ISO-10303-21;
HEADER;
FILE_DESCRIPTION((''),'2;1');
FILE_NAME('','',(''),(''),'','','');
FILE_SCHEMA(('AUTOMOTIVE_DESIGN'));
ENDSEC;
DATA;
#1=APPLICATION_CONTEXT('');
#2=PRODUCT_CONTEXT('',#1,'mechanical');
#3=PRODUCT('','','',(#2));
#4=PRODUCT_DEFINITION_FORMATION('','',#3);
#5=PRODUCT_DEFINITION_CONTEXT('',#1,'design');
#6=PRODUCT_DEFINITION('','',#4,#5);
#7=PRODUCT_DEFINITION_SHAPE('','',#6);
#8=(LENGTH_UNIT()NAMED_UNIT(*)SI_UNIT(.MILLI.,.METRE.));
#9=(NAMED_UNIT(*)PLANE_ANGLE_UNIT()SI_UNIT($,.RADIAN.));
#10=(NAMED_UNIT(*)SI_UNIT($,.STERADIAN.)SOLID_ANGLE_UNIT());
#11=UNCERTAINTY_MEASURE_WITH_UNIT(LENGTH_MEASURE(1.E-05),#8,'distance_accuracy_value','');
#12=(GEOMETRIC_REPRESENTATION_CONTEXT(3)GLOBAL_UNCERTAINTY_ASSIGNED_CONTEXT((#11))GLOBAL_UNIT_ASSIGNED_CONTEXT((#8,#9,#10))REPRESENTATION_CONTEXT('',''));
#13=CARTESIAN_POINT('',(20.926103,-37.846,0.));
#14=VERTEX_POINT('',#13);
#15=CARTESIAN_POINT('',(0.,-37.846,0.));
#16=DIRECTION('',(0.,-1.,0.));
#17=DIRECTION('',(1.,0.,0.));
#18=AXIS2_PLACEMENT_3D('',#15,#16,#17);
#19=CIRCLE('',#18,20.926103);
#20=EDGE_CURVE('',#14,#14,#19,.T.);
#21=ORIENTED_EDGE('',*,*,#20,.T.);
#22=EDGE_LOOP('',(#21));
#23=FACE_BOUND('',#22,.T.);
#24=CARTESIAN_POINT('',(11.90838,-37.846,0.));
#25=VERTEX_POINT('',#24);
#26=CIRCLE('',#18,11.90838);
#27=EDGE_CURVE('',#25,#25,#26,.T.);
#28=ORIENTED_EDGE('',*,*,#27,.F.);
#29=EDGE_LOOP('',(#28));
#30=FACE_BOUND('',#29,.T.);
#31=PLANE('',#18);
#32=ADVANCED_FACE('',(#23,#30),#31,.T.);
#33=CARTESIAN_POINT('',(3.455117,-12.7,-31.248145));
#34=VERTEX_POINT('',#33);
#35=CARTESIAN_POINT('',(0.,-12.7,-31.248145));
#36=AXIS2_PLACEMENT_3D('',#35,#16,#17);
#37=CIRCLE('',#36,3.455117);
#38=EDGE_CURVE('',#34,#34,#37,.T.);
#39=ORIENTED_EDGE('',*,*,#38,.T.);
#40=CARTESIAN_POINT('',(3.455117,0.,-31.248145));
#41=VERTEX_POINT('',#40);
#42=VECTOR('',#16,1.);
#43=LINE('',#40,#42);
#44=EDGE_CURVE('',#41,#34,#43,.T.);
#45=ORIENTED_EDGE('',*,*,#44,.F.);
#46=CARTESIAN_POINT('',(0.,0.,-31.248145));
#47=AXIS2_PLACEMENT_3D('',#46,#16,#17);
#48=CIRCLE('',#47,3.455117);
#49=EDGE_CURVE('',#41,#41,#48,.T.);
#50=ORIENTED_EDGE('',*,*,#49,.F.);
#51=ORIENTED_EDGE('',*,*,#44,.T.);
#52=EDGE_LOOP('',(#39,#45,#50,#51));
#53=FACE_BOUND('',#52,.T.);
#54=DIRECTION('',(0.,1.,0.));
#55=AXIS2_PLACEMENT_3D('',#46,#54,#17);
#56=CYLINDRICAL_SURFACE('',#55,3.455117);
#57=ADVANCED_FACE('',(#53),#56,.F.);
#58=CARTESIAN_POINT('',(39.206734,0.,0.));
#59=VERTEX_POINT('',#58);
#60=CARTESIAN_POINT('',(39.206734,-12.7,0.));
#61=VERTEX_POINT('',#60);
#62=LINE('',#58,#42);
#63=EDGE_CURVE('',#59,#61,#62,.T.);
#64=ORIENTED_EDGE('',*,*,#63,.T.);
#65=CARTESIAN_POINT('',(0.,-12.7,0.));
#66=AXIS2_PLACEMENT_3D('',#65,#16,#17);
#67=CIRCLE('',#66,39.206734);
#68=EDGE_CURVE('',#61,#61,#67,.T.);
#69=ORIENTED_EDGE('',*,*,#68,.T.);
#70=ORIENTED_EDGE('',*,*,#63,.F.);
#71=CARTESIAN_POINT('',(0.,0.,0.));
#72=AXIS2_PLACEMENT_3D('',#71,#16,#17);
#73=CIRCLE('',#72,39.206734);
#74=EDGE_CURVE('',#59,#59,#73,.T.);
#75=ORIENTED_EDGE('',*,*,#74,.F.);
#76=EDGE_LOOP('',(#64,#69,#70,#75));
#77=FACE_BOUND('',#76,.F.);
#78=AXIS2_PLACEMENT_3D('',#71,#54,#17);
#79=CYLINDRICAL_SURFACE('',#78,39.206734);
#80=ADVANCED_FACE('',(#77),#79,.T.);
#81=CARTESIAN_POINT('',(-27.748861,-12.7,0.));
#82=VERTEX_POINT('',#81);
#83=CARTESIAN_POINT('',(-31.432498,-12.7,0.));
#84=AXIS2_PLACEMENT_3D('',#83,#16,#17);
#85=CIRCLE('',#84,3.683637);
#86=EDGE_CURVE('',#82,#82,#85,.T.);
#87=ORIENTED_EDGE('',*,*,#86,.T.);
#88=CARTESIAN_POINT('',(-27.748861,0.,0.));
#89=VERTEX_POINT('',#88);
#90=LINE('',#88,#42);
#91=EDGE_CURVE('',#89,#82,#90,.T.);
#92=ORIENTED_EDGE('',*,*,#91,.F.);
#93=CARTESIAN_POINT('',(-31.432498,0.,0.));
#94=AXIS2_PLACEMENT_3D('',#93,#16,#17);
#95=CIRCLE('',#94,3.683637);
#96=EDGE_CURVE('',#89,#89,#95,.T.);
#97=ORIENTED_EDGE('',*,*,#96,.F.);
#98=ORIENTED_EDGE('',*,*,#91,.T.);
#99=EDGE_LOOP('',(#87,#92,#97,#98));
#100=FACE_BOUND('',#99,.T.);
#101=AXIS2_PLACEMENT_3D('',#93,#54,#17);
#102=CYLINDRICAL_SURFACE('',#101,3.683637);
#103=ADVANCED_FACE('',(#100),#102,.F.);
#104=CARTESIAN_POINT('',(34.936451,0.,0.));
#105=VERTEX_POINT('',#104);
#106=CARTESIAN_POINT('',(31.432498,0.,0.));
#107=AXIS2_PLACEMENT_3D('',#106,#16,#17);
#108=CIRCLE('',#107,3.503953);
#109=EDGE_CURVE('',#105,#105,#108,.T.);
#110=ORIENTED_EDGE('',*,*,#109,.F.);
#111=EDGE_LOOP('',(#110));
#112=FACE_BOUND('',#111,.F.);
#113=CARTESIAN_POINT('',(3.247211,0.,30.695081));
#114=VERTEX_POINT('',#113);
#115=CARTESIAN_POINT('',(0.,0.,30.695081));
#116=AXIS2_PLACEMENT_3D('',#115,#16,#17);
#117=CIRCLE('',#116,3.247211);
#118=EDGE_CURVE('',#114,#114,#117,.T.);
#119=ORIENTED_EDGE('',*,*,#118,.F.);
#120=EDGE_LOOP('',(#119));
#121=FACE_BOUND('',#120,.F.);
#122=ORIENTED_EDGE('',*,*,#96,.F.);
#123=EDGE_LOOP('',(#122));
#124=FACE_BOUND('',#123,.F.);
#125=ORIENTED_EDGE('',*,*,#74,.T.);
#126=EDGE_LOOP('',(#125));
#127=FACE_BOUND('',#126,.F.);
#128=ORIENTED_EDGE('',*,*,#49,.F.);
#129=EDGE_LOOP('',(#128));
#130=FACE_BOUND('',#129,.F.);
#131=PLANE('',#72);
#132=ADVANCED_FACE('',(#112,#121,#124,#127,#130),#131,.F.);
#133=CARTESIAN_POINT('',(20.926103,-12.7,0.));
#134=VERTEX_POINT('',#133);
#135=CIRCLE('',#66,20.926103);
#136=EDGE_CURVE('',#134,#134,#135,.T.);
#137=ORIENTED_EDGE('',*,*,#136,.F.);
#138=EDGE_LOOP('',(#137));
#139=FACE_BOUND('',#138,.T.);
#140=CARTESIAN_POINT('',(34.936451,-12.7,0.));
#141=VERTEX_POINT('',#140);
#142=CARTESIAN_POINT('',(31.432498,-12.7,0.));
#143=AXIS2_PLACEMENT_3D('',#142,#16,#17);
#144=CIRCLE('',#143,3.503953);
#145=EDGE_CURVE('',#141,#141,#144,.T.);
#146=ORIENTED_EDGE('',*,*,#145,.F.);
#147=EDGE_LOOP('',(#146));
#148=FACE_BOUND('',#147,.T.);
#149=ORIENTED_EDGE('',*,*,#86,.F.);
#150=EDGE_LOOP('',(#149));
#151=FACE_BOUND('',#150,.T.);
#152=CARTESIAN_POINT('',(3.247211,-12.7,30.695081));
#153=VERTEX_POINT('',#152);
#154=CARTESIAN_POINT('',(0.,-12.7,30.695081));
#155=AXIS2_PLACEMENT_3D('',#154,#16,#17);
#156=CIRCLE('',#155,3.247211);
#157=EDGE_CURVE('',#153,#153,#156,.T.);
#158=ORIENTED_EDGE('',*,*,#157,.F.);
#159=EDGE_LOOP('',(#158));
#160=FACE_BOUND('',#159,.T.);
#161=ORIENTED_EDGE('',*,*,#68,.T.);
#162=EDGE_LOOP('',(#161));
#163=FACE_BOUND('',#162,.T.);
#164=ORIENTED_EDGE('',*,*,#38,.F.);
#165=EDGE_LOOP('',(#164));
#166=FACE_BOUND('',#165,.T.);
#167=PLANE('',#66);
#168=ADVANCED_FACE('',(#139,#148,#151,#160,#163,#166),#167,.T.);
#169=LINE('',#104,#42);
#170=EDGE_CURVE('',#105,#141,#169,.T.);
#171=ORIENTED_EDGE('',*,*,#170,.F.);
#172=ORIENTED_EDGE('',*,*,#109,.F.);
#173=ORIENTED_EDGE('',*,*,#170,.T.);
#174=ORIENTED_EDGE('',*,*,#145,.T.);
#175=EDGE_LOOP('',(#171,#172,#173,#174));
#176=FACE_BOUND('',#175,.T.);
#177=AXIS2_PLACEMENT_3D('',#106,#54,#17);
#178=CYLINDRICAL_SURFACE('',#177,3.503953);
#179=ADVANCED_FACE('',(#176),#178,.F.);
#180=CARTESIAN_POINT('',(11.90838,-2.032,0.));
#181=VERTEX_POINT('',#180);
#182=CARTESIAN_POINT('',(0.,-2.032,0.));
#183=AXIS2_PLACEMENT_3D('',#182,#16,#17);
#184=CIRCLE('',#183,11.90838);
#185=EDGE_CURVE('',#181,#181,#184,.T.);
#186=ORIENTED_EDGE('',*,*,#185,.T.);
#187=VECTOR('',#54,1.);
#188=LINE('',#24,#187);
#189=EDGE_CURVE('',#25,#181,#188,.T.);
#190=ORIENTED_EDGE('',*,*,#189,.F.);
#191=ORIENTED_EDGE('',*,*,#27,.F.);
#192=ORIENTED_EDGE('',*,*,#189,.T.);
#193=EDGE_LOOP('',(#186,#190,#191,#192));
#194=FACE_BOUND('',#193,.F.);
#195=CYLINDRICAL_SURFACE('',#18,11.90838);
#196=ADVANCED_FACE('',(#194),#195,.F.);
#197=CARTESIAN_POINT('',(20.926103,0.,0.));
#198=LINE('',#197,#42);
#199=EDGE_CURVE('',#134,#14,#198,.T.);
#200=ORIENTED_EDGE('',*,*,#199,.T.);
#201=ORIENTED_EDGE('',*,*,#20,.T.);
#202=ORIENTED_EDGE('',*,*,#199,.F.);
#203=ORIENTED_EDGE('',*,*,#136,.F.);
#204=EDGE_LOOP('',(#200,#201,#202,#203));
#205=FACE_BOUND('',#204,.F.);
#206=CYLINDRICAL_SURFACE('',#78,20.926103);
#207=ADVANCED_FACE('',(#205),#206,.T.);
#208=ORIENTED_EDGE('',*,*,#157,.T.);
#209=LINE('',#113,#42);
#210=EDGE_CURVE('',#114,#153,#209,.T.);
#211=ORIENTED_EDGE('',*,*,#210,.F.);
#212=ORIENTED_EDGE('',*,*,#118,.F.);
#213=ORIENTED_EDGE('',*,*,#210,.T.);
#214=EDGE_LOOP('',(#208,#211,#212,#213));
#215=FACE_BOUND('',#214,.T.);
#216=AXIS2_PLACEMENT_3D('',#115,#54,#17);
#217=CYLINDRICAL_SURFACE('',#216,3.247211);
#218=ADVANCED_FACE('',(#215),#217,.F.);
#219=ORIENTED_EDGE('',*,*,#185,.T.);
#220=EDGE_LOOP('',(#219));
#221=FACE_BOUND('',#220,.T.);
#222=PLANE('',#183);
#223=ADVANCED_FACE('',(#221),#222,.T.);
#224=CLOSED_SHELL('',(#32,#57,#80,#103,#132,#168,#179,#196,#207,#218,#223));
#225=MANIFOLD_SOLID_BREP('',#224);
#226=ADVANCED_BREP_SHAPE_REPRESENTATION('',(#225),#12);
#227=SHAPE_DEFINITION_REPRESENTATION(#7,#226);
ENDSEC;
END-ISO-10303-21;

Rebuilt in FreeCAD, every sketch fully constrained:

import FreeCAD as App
import Part
import Sketcher
Q = App.Units.Quantity

doc = App.newDocument("Part")
body = doc.addObject("PartDesign::Body", "Body")

# Sketch on XZ plane
sketch1 = doc.addObject("Sketcher::SketchObject", "Sketch")
body.addObject(sketch1)
sketch1.AttachmentSupport = (doc.XZ_Plane, [""])
sketch1.MapMode = "FlatFace"
sketch1.addGeometry(Part.Circle(App.Vector(0, 0, 0), App.Vector(0, 0, 1), 39.2), False)
sketch1.addGeometry(Part.Circle(App.Vector(0, -31.2, 0), App.Vector(0, 0, 1), 3.5), False)
sketch1.addGeometry(Part.Circle(App.Vector(-31.4, 0, 0), App.Vector(0, 0, 1), 3.7), False)
sketch1.addGeometry(Part.Circle(App.Vector(0, 0, 0), App.Vector(0, 0, 1), 20.9), False)
sketch1.addGeometry(Part.Circle(App.Vector(31.4, 0, 0), App.Vector(0, 0, 1), 3.5), False)
sketch1.addGeometry(Part.Circle(App.Vector(0, 30.7, 0), App.Vector(0, 0, 1), 3.2), False)
sketch1.addConstraint(Sketcher.Constraint("Coincident", 0, 3, -1, 1))
sketch1.addConstraint(Sketcher.Constraint("Coincident", 3, 3, -1, 1))
sketch1.addConstraint(Sketcher.Constraint("Symmetric", 2, 3, 4, 3, -1, 1))
sketch1.addConstraint(Sketcher.Constraint("PointOnObject", 1, 3, -2))
sketch1.addConstraint(Sketcher.Constraint("PointOnObject", 2, 3, -1))
sketch1.addConstraint(Sketcher.Constraint("PointOnObject", 5, 3, -2))
sketch1.addConstraint(Sketcher.Constraint("DistanceX", 2, 3, 4, 3, Q("2.4749998 in")))
sketch1.addConstraint(Sketcher.Constraint("Diameter", 0, 78.413468))
sketch1.addConstraint(Sketcher.Constraint("Diameter", 1, 6.910234))
sketch1.addConstraint(Sketcher.Constraint("Diameter", 2, 7.367274))
sketch1.addConstraint(Sketcher.Constraint("Diameter", 3, 41.852206))
sketch1.addConstraint(Sketcher.Constraint("Diameter", 4, 7.007906))
sketch1.addConstraint(Sketcher.Constraint("Diameter", 5, 6.494422))
sketch1.addConstraint(Sketcher.Constraint("DistanceY", -1, 1, 5, 3, 30.695081))
sketch1.addConstraint(Sketcher.Constraint("DistanceY", 1, 3, -1, 1, 31.248145))
pad1 = doc.addObject("PartDesign::Pad", "Pad")
body.addObject(pad1)
pad1.Profile = sketch1
pad1.Length = Q("0.5 in")

# Sketch on XZ plane
sketch2 = doc.addObject("Sketcher::SketchObject", "Sketch001")
body.addObject(sketch2)
sketch2.AttachmentSupport = (doc.XZ_Plane, [""])
sketch2.MapMode = "FlatFace"
sketch2.addGeometry(Part.Circle(App.Vector(0, 0, 0), App.Vector(0, 0, 1), 21), False)
sketch2.addConstraint(Sketcher.Constraint("Coincident", 0, 3, -1, 1))
sketch2.addConstraint(Sketcher.Constraint("Diameter", 0, 41.852206))
pad2 = doc.addObject("PartDesign::Pad", "Pad001")
body.addObject(pad2)
pad2.Profile = sketch2
pad2.Length = Q("1.49 in")

# Sketch on XZ plane
sketch3 = doc.addObject("Sketcher::SketchObject", "Sketch002")
body.addObject(sketch3)
sketch3.AttachmentSupport = (doc.XZ_Plane, [""])
sketch3.MapMode = "FlatFace"
sketch3.AttachmentOffset = App.Placement(App.Vector(0, 0, 1.49 * 25.4), App.Rotation())
sketch3.addGeometry(Part.Circle(App.Vector(0, 0, 0), App.Vector(0, 0, 1), 12), False)
sketch3.addConstraint(Sketcher.Constraint("Coincident", 0, 3, -1, 1))
sketch3.addConstraint(Sketcher.Constraint("Diameter", 0, 23.81676))
pocket1 = doc.addObject("PartDesign::Pocket", "Pocket")
body.addObject(pocket1)
pocket1.Profile = sketch3
pocket1.Length = Q("1.41 in")

doc.recompute()
